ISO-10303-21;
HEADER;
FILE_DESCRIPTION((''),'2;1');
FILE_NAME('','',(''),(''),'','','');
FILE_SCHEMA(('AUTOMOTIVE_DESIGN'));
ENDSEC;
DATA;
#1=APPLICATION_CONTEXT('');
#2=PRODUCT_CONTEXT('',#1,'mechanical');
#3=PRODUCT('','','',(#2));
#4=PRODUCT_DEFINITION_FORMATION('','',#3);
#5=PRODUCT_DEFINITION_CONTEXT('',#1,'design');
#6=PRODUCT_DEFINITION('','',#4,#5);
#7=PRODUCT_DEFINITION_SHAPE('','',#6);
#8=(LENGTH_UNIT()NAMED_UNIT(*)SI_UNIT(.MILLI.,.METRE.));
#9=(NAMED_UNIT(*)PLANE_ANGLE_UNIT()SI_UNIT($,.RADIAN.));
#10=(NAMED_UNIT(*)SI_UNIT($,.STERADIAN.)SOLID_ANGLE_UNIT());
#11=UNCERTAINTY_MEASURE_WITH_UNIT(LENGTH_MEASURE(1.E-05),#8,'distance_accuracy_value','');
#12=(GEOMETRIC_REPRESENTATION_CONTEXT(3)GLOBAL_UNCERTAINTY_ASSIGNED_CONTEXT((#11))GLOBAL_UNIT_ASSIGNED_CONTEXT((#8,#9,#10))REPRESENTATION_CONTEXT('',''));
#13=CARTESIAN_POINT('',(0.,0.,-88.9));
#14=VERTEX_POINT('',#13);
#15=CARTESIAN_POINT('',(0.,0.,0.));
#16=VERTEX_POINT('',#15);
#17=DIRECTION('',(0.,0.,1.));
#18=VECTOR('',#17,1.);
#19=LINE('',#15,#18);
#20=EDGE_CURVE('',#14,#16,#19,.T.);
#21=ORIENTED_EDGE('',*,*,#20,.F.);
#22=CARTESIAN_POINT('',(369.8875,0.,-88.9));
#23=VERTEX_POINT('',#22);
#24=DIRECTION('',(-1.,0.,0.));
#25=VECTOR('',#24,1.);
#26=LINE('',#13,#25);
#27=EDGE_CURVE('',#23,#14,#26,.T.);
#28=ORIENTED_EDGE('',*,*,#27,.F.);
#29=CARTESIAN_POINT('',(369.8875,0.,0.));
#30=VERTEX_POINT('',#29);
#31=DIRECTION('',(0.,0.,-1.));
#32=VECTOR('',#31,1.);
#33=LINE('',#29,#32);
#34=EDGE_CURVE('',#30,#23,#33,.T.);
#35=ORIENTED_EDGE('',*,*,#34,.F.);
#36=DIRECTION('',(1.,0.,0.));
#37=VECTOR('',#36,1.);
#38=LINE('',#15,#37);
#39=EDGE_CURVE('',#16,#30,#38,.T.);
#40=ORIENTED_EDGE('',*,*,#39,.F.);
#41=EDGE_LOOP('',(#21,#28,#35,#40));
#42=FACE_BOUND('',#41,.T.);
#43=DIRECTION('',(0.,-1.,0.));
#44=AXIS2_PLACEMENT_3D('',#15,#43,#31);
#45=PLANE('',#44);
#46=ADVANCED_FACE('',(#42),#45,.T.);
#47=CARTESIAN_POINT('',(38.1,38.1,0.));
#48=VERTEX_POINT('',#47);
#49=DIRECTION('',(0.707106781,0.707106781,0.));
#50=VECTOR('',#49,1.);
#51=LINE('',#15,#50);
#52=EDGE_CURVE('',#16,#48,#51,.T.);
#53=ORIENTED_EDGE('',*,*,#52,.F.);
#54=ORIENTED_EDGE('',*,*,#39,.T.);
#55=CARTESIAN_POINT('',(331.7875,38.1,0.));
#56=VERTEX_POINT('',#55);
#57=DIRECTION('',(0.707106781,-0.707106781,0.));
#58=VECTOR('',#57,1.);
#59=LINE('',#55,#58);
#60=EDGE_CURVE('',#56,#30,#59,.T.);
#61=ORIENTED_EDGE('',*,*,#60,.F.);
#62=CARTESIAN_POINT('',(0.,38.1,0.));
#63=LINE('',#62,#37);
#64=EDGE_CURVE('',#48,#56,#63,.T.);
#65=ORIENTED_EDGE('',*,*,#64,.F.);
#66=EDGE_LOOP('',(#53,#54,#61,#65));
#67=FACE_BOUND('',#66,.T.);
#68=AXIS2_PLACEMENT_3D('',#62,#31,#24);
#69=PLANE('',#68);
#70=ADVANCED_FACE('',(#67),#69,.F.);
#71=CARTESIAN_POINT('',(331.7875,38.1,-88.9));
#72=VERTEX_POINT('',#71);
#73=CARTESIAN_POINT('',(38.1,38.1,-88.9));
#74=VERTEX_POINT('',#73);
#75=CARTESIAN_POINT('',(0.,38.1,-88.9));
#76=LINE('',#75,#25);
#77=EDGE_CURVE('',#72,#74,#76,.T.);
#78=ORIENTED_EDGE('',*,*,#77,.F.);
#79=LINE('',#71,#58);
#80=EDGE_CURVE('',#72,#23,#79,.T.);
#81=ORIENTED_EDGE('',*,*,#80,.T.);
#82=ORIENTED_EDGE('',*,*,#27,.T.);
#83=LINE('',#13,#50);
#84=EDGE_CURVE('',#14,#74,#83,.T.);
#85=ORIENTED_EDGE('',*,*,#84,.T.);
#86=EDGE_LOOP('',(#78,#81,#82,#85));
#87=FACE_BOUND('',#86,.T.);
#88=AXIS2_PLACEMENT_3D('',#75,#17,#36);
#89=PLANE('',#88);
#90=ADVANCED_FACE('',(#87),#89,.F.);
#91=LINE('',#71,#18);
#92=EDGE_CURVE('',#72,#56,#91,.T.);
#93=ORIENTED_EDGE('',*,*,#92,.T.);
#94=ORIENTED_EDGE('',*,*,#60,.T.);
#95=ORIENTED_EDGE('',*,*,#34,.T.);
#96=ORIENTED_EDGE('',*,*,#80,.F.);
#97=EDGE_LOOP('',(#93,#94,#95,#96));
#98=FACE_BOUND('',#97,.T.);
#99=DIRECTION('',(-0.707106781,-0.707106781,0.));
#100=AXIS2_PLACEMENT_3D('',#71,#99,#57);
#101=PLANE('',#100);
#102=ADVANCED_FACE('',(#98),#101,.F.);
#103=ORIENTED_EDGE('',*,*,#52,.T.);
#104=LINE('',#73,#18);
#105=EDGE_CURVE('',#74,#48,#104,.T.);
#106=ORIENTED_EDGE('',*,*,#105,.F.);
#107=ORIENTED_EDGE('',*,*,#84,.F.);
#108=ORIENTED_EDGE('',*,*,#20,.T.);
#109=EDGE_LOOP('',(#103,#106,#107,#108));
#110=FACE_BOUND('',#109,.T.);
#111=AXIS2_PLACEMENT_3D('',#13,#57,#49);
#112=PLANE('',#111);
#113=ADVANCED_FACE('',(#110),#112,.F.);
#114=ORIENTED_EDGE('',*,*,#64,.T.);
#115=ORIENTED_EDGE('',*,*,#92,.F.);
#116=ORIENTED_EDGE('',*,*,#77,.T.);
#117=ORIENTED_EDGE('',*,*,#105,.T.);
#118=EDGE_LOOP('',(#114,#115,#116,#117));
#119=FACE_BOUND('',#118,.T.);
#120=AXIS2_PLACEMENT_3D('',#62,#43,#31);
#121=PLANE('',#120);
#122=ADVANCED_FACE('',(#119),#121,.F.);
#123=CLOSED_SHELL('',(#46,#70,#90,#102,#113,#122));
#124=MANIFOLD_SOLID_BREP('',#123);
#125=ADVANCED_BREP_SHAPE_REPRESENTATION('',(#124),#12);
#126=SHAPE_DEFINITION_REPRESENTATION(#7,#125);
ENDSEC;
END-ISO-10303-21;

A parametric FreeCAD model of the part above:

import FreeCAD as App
import Part
import Sketcher

V = App.Vector
Q = App.Units.Quantity


def add_polygon(sketch, points):
    """Adds a closed chain of lines whose ends are joined by coincident constraints."""
    first, n = sketch.GeometryCount, len(points)
    for a, b in zip(points, points[1:] + points[:1]):
        sketch.addGeometry(Part.LineSegment(App.Vector(*a, 0), App.Vector(*b, 0)), False)
    for i in range(n):
        sketch.addConstraint(Sketcher.Constraint("Coincident", first + i, 2, first + (i + 1) % n, 1))

doc = App.newDocument("Part")
body = doc.addObject("PartDesign::Body", "Body")

# Sketch on XZ plane
sketch1 = body.newObject("Sketcher::SketchObject", "Sketch")
sketch1.AttachmentSupport = (doc.getObject("XZ_Plane"), [""])
sketch1.MapMode = "FlatFace"
add_polygon(sketch1, [(0, -89), (0, 0), (370, 0), (370, -89)])  # lines 0-3
sketch1.addConstraint(Sketcher.Constraint("Vertical", 0))
sketch1.addConstraint(Sketcher.Constraint("Horizontal", 1))
sketch1.addConstraint(Sketcher.Constraint("Vertical", 2))
sketch1.addConstraint(Sketcher.Constraint("Horizontal", 3))
sketch1.addConstraint(Sketcher.Constraint("Coincident", 0, 2, -1, 1))
sketch1.addConstraint(Sketcher.Constraint("DistanceY", 0, 1, 0, 2, Q("3.5 in")))
sketch1.addConstraint(Sketcher.Constraint("DistanceX", 1, 1, 1, 2, Q("14.5625 in")))
pad1 = body.newObject("PartDesign::Pad", "Pad")
pad1.Profile = sketch1
pad1.Length = Q("1.5 in")
pad1.Reversed = True

# Sketch on XY plane
sketch2 = body.newObject("Sketcher::SketchObject", "Sketch001")
sketch2.AttachmentSupport = (doc.getObject("XY_Plane"), [""])
sketch2.MapMode = "FlatFace"
add_polygon(sketch2, [(0, 0), (38, 38), (0, 38)])  # lines 0-2
add_polygon(sketch2, [(370, 0), (370, 38), (332, 38)])  # lines 3-5
sketch2.addConstraint(Sketcher.Constraint("Horizontal", 1))
sketch2.addConstraint(Sketcher.Constraint("Vertical", 2))
sketch2.addConstraint(Sketcher.Constraint("Vertical", 3))
sketch2.addConstraint(Sketcher.Constraint("Horizontal", 4))
sketch2.addConstraint(Sketcher.Constraint("Coincident", 2, 2, -1, 1))
sketch2.addConstraint(Sketcher.Constraint("PointOnObject", 5, 2, -1))
sketch2.addConstraint(Sketcher.Constraint("Perpendicular", 0, 5))
sketch2.addConstraint(Sketcher.Constraint("Horizontal", 1, 2, 3, 2))
sketch2.addConstraint(Sketcher.Constraint("Equal", 1, 4))
sketch2.addConstraint(Sketcher.Constraint("DistanceX", 1, 2, 1, 1, Q("1.5 in")))
sketch2.addConstraint(Sketcher.Constraint("DistanceX", -1, 1, 3, 2, Q("14.5625 in")))
pocket1 = body.newObject("PartDesign::Pocket", "Pocket")
pocket1.Profile = sketch2
pocket1.Type = "ThroughAll"

doc.recompute()
